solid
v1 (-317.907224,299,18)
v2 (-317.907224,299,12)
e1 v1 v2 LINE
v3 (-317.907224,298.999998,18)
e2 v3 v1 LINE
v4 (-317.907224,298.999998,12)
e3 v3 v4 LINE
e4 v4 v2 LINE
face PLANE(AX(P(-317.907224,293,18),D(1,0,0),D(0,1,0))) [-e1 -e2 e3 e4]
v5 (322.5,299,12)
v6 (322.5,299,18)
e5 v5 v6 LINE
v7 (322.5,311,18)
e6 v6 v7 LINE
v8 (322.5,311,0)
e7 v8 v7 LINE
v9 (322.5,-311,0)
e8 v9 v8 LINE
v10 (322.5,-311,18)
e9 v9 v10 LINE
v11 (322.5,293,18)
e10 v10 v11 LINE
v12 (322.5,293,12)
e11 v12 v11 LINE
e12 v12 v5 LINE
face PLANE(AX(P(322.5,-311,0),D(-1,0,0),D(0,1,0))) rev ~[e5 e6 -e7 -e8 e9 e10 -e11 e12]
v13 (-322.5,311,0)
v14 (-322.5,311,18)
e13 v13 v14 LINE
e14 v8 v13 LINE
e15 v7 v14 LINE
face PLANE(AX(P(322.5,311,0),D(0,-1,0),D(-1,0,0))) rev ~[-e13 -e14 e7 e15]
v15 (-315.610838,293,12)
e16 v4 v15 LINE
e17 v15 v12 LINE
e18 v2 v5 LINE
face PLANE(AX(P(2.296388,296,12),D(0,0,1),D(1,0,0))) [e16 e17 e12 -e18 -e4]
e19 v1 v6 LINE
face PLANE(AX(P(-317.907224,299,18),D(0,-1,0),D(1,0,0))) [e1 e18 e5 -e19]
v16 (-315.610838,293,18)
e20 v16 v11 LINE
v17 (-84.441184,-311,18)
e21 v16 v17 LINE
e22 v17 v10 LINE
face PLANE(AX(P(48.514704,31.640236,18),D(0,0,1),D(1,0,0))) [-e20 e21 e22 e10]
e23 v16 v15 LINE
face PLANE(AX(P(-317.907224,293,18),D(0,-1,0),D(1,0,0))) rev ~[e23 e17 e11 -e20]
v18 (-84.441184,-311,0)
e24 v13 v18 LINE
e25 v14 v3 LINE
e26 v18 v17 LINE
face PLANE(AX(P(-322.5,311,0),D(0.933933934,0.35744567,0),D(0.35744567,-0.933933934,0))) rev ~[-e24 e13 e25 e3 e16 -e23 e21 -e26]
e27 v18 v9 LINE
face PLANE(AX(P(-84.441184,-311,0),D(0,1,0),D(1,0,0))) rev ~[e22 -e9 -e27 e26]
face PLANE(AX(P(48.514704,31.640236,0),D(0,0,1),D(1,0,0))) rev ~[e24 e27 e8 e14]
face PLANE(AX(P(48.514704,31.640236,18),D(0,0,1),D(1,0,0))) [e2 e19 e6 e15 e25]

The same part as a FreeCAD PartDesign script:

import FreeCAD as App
import Part
import Sketcher
Q = App.Units.Quantity

doc = App.newDocument("Part")
body = doc.addObject("PartDesign::Body", "Body")

# Sketch on XY plane
sketch1 = body.newObject("Sketcher::SketchObject", "Sketch")
sketch1.AttachmentSupport = (doc.getObject("XY_Plane"), [""])
sketch1.MapMode = "FlatFace"
sketch1.addGeometry(Part.LineSegment(App.Vector(322, -311, 0), App.Vector(322, 311, 0)), False)
sketch1.addGeometry(Part.LineSegment(App.Vector(322, 311, 0), App.Vector(-322, 311, 0)), False)
sketch1.addGeometry(Part.LineSegment(App.Vector(-322, 311, 0), App.Vector(-84, -311, 0)), False)
sketch1.addGeometry(Part.LineSegment(App.Vector(-84, -311, 0), App.Vector(322, -311, 0)), False)
sketch1.addConstraint(Sketcher.Constraint("Coincident", 0, 2, 1, 1))
sketch1.addConstraint(Sketcher.Constraint("Coincident", 1, 2, 2, 1))
sketch1.addConstraint(Sketcher.Constraint("Coincident", 2, 2, 3, 1))
sketch1.addConstraint(Sketcher.Constraint("Coincident", 3, 2, 0, 1))
sketch1.addConstraint(Sketcher.Constraint("Vertical", 0))
sketch1.addConstraint(Sketcher.Constraint("Horizontal", 1))
sketch1.addConstraint(Sketcher.Constraint("Horizontal", 3))
sketch1.addConstraint(Sketcher.Constraint("Symmetric", 1, 2, 3, 2, -1, 1))
sketch1.addConstraint(Sketcher.Constraint("DistanceX", 1, 2, 1, 1, Q("645 mm")))
sketch1.addConstraint(Sketcher.Constraint("DistanceY", 0, 1, 0, 2, Q("622 mm")))
sketch1.addConstraint(Sketcher.Constraint("Distance", 2, Q("666 mm")))
pad1 = body.newObject("PartDesign::Pad", "Pad")
pad1.Profile = sketch1
pad1.Length = 18

# Sketch on XY plane
sketch2 = body.newObject("Sketcher::SketchObject", "Sketch001")
sketch2.AttachmentSupport = (doc.getObject("XY_Plane"), [""])
sketch2.MapMode = "FlatFace"
sketch2.AttachmentOffset = App.Placement(App.Vector(0, 0, 18), App.Rotation())
sketch2.addGeometry(Part.LineSegment(App.Vector(-318, 299, 0), App.Vector(-318, 293, 0)), False)
sketch2.addGeometry(Part.LineSegment(App.Vector(-318, 293, 0), App.Vector(323, 293, 0)), False)
sketch2.addGeometry(Part.LineSegment(App.Vector(323, 293, 0), App.Vector(323, 299, 0)), False)
sketch2.addGeometry(Part.LineSegment(App.Vector(323, 299, 0), App.Vector(-318, 299, 0)), False)
sketch2.addConstraint(Sketcher.Constraint("Coincident", 0, 2, 1, 1))
sketch2.addConstraint(Sketcher.Constraint("Coincident", 1, 2, 2, 1))
sketch2.addConstraint(Sketcher.Constraint("Coincident", 2, 2, 3, 1))
sketch2.addConstraint(Sketcher.Constraint("Coincident", 3, 2, 0, 1))
sketch2.addConstraint(Sketcher.Constraint("Vertical", 0))
sketch2.addConstraint(Sketcher.Constraint("Horizontal", 1))
sketch2.addConstraint(Sketcher.Constraint("Vertical", 2))
sketch2.addConstraint(Sketcher.Constraint("Horizontal", 3))
sketch2.addConstraint(Sketcher.Constraint("DistanceY", 0, 2, 0, 1, Q("6 mm")))
sketch2.addConstraint(Sketcher.Constraint("DistanceY", -1, 1, 0, 2, Q("293 mm")))
sketch2.addConstraint(Sketcher.Constraint("DistanceX", -1, 1, 1, 2, Q("322.5 mm")))
sketch2.addConstraint(Sketcher.Constraint("DistanceX", 1, 1, 1, 2, Q("640.407225 mm")))
pocket1 = body.newObject("PartDesign::Pocket", "Pocket")
pocket1.Profile = sketch2
pocket1.Length = 6

doc.recompute()
